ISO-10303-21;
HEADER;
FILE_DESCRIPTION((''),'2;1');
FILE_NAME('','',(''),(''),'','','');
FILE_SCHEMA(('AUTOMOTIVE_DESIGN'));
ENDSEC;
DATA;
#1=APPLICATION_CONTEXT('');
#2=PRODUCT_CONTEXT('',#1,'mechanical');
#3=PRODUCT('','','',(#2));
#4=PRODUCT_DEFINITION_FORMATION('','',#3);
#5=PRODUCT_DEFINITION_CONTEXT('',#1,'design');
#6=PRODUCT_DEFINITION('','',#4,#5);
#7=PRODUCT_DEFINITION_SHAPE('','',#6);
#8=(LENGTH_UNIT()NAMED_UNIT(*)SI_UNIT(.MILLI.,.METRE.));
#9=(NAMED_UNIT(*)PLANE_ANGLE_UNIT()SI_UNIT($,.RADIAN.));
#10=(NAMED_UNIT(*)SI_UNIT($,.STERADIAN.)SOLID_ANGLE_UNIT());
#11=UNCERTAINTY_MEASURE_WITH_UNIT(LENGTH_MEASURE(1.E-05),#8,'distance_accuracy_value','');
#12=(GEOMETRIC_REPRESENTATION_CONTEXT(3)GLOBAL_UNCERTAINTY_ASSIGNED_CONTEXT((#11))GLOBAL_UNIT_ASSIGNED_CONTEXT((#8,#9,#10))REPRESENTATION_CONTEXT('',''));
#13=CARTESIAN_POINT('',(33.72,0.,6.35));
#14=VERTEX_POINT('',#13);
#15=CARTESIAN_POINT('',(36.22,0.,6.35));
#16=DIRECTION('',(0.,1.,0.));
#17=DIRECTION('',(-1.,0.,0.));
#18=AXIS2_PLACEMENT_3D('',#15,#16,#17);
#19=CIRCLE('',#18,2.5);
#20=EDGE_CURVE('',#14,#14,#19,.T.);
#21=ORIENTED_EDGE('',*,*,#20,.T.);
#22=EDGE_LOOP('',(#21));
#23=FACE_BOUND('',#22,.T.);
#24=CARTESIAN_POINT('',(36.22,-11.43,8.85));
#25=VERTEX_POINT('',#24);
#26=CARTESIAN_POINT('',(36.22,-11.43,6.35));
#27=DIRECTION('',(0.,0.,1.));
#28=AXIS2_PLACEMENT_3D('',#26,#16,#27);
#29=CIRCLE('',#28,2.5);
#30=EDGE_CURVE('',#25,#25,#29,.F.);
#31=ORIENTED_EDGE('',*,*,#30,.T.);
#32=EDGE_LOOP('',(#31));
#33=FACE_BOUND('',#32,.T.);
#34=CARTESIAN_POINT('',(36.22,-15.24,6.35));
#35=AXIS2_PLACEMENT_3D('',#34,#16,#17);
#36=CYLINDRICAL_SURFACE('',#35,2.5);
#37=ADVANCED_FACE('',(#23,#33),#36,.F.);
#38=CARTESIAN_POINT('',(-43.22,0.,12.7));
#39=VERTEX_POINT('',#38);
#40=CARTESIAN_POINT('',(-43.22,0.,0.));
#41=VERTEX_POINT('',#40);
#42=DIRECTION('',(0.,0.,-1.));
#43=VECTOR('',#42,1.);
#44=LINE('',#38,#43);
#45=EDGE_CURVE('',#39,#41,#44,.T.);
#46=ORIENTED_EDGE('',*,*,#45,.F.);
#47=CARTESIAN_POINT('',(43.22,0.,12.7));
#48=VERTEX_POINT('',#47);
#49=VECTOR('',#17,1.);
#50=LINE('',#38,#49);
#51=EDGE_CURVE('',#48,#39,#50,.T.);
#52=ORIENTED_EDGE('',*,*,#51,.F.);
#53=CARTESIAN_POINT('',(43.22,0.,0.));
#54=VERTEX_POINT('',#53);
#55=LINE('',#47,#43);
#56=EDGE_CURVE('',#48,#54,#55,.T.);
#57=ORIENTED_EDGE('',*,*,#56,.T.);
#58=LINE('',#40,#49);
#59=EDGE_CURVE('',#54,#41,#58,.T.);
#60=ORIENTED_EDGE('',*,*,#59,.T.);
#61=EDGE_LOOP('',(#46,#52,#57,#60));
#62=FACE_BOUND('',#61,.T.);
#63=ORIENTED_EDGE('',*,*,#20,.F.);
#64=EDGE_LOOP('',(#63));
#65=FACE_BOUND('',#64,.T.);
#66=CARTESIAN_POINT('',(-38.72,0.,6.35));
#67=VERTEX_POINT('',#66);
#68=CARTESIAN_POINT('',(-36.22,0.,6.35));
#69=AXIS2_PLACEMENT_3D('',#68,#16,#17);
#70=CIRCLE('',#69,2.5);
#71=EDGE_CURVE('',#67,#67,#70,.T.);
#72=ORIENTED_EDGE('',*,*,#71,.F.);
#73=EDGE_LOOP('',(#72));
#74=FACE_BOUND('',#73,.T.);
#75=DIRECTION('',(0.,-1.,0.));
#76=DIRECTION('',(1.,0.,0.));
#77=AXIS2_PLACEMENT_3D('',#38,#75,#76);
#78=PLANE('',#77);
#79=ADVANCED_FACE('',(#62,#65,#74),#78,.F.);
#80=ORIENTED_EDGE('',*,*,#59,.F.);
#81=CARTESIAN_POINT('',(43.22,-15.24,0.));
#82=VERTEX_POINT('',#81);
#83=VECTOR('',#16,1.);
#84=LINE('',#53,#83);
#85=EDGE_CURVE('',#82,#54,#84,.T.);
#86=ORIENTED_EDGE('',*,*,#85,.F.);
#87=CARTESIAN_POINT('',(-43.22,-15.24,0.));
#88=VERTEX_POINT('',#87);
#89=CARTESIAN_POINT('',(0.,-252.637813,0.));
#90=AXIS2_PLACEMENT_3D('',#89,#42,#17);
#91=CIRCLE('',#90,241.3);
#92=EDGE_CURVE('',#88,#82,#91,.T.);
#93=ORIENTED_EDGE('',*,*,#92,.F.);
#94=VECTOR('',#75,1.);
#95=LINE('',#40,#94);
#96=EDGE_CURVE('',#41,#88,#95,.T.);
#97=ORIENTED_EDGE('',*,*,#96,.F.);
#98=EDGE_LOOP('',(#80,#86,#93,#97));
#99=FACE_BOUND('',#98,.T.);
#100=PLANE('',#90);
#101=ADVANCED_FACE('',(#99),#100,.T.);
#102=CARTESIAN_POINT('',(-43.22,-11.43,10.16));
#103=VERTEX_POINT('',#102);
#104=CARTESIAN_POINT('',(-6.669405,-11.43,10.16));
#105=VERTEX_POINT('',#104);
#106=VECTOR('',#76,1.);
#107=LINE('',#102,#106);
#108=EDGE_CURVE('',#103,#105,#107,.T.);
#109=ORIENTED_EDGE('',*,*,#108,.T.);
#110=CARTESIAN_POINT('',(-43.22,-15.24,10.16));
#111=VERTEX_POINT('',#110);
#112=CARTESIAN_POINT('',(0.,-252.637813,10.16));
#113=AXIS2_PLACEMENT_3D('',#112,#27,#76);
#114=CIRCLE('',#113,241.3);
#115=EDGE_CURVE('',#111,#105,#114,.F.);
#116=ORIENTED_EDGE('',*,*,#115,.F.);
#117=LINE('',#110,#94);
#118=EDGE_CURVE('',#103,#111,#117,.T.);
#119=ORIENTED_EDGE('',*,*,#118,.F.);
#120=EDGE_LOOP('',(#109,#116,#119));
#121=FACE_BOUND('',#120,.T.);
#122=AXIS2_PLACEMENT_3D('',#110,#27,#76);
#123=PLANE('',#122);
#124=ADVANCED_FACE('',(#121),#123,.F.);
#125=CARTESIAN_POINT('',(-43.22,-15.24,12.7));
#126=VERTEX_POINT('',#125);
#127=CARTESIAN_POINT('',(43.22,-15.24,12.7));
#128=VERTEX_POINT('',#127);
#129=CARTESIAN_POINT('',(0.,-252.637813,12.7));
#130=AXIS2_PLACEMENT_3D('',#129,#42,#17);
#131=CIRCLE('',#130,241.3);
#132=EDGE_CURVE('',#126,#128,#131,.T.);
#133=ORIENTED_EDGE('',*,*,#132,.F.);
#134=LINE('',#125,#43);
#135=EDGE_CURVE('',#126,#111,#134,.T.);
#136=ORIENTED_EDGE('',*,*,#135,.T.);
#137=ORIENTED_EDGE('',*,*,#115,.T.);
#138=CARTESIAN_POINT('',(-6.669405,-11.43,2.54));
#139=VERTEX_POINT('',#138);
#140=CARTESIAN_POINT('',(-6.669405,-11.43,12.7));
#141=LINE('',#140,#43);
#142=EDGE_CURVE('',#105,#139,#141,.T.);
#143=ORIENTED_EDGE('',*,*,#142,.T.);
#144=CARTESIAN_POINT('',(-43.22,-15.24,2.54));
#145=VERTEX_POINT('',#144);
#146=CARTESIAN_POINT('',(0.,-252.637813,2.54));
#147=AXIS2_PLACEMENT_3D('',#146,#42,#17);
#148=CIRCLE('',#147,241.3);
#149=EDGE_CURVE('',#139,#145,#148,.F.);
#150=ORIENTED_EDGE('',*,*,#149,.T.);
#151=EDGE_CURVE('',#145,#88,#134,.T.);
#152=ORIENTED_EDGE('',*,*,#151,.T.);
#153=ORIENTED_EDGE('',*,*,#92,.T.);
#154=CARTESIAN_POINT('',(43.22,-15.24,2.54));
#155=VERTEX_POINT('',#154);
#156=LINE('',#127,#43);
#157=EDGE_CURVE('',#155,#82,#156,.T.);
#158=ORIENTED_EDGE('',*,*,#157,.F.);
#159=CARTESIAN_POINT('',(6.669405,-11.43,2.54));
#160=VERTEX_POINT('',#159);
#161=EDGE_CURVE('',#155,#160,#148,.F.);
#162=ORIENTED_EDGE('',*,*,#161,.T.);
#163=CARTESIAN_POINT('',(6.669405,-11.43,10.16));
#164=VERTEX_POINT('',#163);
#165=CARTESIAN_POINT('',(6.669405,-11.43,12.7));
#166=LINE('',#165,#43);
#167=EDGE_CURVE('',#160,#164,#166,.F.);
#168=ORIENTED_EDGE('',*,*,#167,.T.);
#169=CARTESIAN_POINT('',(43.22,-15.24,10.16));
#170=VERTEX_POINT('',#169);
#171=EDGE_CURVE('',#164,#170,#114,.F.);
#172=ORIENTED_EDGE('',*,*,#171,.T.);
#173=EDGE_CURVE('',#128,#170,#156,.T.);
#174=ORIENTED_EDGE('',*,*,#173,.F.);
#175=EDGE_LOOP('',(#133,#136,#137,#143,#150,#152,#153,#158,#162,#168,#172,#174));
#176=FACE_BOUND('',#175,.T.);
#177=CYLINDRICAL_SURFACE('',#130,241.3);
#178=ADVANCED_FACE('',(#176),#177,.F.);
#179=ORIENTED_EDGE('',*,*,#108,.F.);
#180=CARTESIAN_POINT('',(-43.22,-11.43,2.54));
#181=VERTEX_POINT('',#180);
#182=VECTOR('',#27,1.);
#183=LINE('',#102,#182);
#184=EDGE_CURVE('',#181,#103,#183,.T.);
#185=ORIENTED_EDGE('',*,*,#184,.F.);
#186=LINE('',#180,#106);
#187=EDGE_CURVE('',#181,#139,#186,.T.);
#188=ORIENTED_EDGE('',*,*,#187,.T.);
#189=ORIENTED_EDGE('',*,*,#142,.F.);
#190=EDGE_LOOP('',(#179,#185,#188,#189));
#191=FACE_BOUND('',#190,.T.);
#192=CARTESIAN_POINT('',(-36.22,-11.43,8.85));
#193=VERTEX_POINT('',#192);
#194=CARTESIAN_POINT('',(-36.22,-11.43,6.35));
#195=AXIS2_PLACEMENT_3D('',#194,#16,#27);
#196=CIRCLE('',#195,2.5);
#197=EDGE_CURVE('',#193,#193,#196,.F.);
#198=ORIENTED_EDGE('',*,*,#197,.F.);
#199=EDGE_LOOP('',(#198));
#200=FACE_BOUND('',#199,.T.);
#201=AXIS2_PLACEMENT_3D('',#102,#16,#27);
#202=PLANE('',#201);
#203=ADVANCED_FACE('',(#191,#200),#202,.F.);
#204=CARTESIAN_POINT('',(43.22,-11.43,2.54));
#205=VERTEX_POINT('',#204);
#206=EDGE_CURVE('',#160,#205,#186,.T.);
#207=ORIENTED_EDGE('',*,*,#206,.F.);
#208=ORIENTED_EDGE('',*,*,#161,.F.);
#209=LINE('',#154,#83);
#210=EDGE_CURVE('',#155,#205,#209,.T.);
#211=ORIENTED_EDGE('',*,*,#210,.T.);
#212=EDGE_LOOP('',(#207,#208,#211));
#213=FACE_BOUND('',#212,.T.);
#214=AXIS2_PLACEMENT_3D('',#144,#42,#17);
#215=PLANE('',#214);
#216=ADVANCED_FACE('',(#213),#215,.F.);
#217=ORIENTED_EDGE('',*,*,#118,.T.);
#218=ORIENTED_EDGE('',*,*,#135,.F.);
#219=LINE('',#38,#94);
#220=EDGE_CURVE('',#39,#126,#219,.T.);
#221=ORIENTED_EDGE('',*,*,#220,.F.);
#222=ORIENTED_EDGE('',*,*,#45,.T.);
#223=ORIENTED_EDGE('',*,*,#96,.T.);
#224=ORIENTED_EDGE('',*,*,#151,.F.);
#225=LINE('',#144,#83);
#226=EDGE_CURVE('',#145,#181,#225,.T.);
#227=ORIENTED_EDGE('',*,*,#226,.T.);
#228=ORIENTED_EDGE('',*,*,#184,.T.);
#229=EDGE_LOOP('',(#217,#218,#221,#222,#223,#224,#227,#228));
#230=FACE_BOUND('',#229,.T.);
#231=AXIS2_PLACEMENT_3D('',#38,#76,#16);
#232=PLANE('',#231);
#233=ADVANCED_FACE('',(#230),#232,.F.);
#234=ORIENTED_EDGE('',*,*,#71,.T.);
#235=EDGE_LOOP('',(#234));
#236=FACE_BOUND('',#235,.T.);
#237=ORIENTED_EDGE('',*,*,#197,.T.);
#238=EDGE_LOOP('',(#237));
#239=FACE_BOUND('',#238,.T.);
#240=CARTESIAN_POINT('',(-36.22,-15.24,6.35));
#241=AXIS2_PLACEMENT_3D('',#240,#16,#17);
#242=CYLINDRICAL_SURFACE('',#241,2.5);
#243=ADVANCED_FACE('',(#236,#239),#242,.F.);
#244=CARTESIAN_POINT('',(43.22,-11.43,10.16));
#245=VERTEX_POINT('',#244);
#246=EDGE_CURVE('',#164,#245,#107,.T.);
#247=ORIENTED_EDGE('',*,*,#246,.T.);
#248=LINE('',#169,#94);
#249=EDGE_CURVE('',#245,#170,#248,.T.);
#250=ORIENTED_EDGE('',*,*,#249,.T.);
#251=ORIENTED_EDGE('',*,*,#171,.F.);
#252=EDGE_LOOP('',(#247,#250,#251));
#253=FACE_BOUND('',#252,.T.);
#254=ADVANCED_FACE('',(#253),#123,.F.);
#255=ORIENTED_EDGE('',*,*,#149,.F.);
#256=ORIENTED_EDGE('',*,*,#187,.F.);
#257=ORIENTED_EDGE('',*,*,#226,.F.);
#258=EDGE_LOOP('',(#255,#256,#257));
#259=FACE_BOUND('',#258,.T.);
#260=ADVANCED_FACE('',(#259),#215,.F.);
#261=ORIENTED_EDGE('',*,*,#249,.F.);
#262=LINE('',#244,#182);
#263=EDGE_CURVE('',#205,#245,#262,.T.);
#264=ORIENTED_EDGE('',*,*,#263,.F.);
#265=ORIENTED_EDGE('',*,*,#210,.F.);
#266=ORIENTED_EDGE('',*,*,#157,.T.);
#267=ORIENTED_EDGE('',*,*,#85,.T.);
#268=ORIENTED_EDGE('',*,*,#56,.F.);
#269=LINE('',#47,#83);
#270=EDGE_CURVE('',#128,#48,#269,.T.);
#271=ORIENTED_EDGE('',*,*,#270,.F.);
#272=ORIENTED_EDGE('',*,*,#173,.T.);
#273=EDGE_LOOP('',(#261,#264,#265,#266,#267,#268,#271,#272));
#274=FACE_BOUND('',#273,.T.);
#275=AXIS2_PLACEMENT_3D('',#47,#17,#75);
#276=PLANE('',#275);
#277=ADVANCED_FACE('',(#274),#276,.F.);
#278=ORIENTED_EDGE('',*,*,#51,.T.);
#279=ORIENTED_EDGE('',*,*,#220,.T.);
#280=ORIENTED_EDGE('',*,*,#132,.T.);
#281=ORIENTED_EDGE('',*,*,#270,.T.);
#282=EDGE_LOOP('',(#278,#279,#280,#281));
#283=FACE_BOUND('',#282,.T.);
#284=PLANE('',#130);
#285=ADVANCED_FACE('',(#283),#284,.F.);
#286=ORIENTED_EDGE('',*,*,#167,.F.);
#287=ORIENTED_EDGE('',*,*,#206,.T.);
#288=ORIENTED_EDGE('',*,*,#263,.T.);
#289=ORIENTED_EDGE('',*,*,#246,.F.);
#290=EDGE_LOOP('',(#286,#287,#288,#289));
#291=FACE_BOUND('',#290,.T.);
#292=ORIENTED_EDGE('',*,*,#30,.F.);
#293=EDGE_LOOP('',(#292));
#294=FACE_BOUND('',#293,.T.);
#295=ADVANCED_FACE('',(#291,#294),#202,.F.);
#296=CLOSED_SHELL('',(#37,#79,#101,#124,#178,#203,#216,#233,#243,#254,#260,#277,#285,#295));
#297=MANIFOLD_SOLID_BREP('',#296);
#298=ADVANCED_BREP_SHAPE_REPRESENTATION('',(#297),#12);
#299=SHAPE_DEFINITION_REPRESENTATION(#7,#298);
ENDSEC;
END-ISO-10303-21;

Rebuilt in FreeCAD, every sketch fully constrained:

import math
import FreeCAD as App
import Part
import Sketcher
from FreeCAD import Vector
Q = App.Units.Quantity

doc = App.newDocument("Part")
body = doc.addObject("PartDesign::Body", "Body")

# Sketch on XY plane
sketch1 = body.newObject("Sketcher::SketchObject", "Sketch")
sketch1.AttachmentSupport = (doc.getObject("XY_Plane"), [""])
sketch1.MapMode = "FlatFace"
sketch1.addGeometry([
    Part.LineSegment(Vector(43, 0, 0), Vector(-43, 0, 0)),
    Part.LineSegment(Vector(-43, 0, 0), Vector(-43, -15, 0)),
    Part.ArcOfCircle(Part.Circle(Vector(0, -253, 0), Vector(0, 0, 1), 241), math.radians(80), math.radians(100)),
    Part.LineSegment(Vector(43, -15, 0), Vector(43, 0, 0)),
], False)
sketch1.addConstraint([
    Sketcher.Constraint("Coincident", 0, 2, 1, 1),
    Sketcher.Constraint("Coincident", 1, 2, 2, 2),
    Sketcher.Constraint("Coincident", 2, 1, 3, 1),
    Sketcher.Constraint("Coincident", 3, 2, 0, 1),
    Sketcher.Constraint("Horizontal", 0),
    Sketcher.Constraint("Vertical", 1),
    Sketcher.Constraint("Vertical", 3),
    Sketcher.Constraint("Symmetric", 0, 2, 3, 2, -1, 1),
    Sketcher.Constraint("PointOnObject", 2, 3, -2),
    Sketcher.Constraint("Radius", 2, Q("9.5 in")),
    Sketcher.Constraint("DistanceY", 1, 2, 1, 1, Q("0.6 in")),
    Sketcher.Constraint("DistanceX", 0, 2, 0, 1, 86.44),
])
pad1 = body.newObject("PartDesign::Pad", "Pad")
pad1.Profile = sketch1
pad1.Length = Q("0.5 in")

# Sketch on XZ plane
sketch2 = body.newObject("Sketcher::SketchObject", "Sketch001")
sketch2.AttachmentSupport = (doc.getObject("XZ_Plane"), [""])
sketch2.MapMode = "FlatFace"
sketch2.addGeometry([
    Part.Circle(Vector(-36.2, 6.3, 0), Vector(0, 0, 1), 2.5),
    Part.Circle(Vector(36.2, 6.3, 0), Vector(0, 0, 1), 2.5),
], False)
sketch2.addConstraint([
    Sketcher.Constraint("Equal", 0, 1),
    Sketcher.Constraint("Symmetric", 0, 3, 1, 3, -2),
    Sketcher.Constraint("Diameter", 0, 5.0),
    Sketcher.Constraint("DistanceY", -1, 1, 0, 3, Q("0.25 in")),
    Sketcher.Constraint("DistanceX", 0, 3, -1, 1, 36.22),
])
pocket1 = body.newObject("PartDesign::Pocket", "Pocket")
pocket1.Profile = sketch2
pocket1.Type = "ThroughAll"
pocket1.Reversed = True

# Sketch on YZ plane
sketch3 = body.newObject("Sketcher::SketchObject", "Sketch002")
sketch3.AttachmentSupport = (doc.getObject("YZ_Plane"), [""])
sketch3.MapMode = "FlatFace"
sketch3.AttachmentOffset = App.Placement(Vector(0, 0, 43.22), App.Rotation())
sketch3.addGeometry([
    Part.LineSegment(Vector(-11.4, 10.2, 0), Vector(-15.2, 10.2, 0)),
    Part.LineSegment(Vector(-15.2, 10.2, 0), Vector(-15.2, 2.5, 0)),
    Part.LineSegment(Vector(-15.2, 2.5, 0), Vector(-11.4, 2.5, 0)),
    Part.LineSegment(Vector(-11.4, 2.5, 0), Vector(-11.4, 10.2, 0)),
], False)
sketch3.addConstraint([
    Sketcher.Constraint("Coincident", 0, 2, 1, 1),
    Sketcher.Constraint("Coincident", 1, 2, 2, 1),
    Sketcher.Constraint("Coincident", 2, 2, 3, 1),
    Sketcher.Constraint("Coincident", 3, 2, 0, 1),
    Sketcher.Constraint("Horizontal", 0),
    Sketcher.Constraint("Vertical", 1),
    Sketcher.Constraint("Horizontal", 2),
    Sketcher.Constraint("Vertical", 3),
    Sketcher.Constraint("DistanceY", 1, 2, 1, 1, Q("0.3 in")),
    Sketcher.Constraint("DistanceX", 0, 2, 0, 1, Q("0.15 in")),
    Sketcher.Constraint("DistanceX", 0, 2, -1, 1, Q("0.6 in")),
    Sketcher.Constraint("DistanceY", -1, 1, 0, 2, Q("0.4 in")),
])
pocket2 = body.newObject("PartDesign::Pocket", "Pocket001")
pocket2.Profile = sketch3
pocket2.Type = "ThroughAll"

doc.recompute()
